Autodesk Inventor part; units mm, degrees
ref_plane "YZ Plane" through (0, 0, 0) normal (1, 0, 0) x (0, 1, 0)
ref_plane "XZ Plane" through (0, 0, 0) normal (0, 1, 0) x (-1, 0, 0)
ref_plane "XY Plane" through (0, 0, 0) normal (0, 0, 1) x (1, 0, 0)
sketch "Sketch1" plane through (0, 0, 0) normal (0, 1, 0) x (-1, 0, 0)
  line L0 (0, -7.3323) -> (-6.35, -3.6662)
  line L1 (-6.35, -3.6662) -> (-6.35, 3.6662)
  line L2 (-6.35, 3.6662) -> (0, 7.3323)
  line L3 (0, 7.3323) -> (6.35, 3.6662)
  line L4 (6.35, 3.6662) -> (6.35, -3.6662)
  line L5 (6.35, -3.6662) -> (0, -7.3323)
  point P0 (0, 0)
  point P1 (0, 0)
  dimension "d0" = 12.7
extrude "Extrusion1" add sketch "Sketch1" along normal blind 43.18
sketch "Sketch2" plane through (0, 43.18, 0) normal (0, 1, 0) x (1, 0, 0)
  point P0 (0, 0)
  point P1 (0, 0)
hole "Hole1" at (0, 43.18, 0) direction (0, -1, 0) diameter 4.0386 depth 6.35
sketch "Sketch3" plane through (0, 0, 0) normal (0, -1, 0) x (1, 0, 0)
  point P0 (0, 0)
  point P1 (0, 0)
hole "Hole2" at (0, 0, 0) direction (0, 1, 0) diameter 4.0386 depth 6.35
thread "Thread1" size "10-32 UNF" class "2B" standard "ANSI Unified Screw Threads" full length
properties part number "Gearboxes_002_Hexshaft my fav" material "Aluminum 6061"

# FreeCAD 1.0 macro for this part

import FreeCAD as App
import Part
import Sketcher

V = App.Vector
Q = App.Units.Quantity


def add_polygon(sketch, points):
    """Adds a closed chain of lines whose ends are joined by coincident constraints."""
    first, n = sketch.GeometryCount, len(points)
    for a, b in zip(points, points[1:] + points[:1]):
        sketch.addGeometry(Part.LineSegment(App.Vector(*a, 0), App.Vector(*b, 0)), False)
    for i in range(n):
        sketch.addConstraint(Sketcher.Constraint("Coincident", first + i, 2, first + (i + 1) % n, 1))

doc = App.newDocument("Part")
body = doc.addObject("PartDesign::Body", "Body")

sketch1 = body.newObject("Sketcher::SketchObject", "Sketch")
sketch1.AttachmentSupport = (doc.getObject("XZ_Plane"), [""])
sketch1.MapMode = "FlatFace"
add_polygon(sketch1, [(6.35, -3.6662), (0, -7.3323), (-6.35, -3.6662), (-6.35, 3.6662), (0, 7.3323), (6.35, 3.6662)])
sketch1.addConstraint(Sketcher.Constraint("Vertical", 2))
sketch1.addConstraint(Sketcher.Constraint("Vertical", 5))
sketch1.addConstraint(Sketcher.Constraint("Symmetric", 0, 2, 3, 2, -1, 1))
sketch1.addConstraint(Sketcher.Constraint("Symmetric", 1, 2, 4, 2, -1, 1))
sketch1.addConstraint(Sketcher.Constraint("PointOnObject", 0, 2, -2))
sketch1.addConstraint(Sketcher.Constraint("Parallel", 0, 3))
sketch1.addConstraint(Sketcher.Constraint("Horizontal", 2, 2, 4, 2))
sketch1.addConstraint(Sketcher.Constraint("DistanceX", 2, 2, 4, 2, Q("0.5 in")))
sketch1.addConstraint(Sketcher.Constraint("Angle", 0, Q("-150.0005 deg")))
sketch1.addConstraint(Sketcher.Constraint("DistanceY", 0, 2, 2, 2, Q("0.433 in")))
pad1 = body.newObject("PartDesign::Pad", "Pad")
pad1.Profile = sketch1
pad1.Length = Q("1.7 in")
pad1.Reversed = True

sketch2 = body.newObject("Sketcher::SketchObject", "Sketch001")
sketch2.AttachmentSupport = (doc.getObject("XZ_Plane"), [""])
sketch2.MapMode = "FlatFace"
sketch2.AttachmentOffset = App.Placement(V(0, 0, -1.7 * 25.4), App.Rotation())
sketch2.addGeometry(Part.Circle(V(0, 0, 0), V(0, 0, 1), 2.0193), False)
sketch2.addConstraint(Sketcher.Constraint("Coincident", 0, 3, -1, 1))
sketch2.addConstraint(Sketcher.Constraint("Diameter", 0, Q("0.159 in")))
doc.recompute()
hole = body.newObject("PartDesign::Hole", "Hole")
hole.Profile = sketch2
hole.ThreadType = "None"
hole.Diameter = Q("0.159 in")
hole.DepthType = "Dimension"
hole.Depth = Q("0.25 in")
hole.DrillPoint = "Flat"
hole.Reversed = True

sketch3 = body.newObject("Sketcher::SketchObject", "Sketch002")
sketch3.AttachmentSupport = (doc.getObject("XZ_Plane"), [""])
sketch3.MapMode = "FlatFace"
sketch3.addGeometry(Part.Circle(V(0, 0, 0), V(0, 0, 1), 2.0193), False)
sketch3.addConstraint(Sketcher.Constraint("Coincident", 0, 3, -1, 1))
sketch3.addConstraint(Sketcher.Constraint("Diameter", 0, Q("0.159 in")))
doc.recompute()
hole2 = body.newObject("PartDesign::Hole", "Hole001")
hole2.Profile = sketch3
hole2.ThreadType = "None"
hole2.Diameter = Q("0.159 in")
hole2.DepthType = "Dimension"
hole2.Depth = Q("0.25 in")
hole2.DrillPoint = "Flat"

doc.recompute()
